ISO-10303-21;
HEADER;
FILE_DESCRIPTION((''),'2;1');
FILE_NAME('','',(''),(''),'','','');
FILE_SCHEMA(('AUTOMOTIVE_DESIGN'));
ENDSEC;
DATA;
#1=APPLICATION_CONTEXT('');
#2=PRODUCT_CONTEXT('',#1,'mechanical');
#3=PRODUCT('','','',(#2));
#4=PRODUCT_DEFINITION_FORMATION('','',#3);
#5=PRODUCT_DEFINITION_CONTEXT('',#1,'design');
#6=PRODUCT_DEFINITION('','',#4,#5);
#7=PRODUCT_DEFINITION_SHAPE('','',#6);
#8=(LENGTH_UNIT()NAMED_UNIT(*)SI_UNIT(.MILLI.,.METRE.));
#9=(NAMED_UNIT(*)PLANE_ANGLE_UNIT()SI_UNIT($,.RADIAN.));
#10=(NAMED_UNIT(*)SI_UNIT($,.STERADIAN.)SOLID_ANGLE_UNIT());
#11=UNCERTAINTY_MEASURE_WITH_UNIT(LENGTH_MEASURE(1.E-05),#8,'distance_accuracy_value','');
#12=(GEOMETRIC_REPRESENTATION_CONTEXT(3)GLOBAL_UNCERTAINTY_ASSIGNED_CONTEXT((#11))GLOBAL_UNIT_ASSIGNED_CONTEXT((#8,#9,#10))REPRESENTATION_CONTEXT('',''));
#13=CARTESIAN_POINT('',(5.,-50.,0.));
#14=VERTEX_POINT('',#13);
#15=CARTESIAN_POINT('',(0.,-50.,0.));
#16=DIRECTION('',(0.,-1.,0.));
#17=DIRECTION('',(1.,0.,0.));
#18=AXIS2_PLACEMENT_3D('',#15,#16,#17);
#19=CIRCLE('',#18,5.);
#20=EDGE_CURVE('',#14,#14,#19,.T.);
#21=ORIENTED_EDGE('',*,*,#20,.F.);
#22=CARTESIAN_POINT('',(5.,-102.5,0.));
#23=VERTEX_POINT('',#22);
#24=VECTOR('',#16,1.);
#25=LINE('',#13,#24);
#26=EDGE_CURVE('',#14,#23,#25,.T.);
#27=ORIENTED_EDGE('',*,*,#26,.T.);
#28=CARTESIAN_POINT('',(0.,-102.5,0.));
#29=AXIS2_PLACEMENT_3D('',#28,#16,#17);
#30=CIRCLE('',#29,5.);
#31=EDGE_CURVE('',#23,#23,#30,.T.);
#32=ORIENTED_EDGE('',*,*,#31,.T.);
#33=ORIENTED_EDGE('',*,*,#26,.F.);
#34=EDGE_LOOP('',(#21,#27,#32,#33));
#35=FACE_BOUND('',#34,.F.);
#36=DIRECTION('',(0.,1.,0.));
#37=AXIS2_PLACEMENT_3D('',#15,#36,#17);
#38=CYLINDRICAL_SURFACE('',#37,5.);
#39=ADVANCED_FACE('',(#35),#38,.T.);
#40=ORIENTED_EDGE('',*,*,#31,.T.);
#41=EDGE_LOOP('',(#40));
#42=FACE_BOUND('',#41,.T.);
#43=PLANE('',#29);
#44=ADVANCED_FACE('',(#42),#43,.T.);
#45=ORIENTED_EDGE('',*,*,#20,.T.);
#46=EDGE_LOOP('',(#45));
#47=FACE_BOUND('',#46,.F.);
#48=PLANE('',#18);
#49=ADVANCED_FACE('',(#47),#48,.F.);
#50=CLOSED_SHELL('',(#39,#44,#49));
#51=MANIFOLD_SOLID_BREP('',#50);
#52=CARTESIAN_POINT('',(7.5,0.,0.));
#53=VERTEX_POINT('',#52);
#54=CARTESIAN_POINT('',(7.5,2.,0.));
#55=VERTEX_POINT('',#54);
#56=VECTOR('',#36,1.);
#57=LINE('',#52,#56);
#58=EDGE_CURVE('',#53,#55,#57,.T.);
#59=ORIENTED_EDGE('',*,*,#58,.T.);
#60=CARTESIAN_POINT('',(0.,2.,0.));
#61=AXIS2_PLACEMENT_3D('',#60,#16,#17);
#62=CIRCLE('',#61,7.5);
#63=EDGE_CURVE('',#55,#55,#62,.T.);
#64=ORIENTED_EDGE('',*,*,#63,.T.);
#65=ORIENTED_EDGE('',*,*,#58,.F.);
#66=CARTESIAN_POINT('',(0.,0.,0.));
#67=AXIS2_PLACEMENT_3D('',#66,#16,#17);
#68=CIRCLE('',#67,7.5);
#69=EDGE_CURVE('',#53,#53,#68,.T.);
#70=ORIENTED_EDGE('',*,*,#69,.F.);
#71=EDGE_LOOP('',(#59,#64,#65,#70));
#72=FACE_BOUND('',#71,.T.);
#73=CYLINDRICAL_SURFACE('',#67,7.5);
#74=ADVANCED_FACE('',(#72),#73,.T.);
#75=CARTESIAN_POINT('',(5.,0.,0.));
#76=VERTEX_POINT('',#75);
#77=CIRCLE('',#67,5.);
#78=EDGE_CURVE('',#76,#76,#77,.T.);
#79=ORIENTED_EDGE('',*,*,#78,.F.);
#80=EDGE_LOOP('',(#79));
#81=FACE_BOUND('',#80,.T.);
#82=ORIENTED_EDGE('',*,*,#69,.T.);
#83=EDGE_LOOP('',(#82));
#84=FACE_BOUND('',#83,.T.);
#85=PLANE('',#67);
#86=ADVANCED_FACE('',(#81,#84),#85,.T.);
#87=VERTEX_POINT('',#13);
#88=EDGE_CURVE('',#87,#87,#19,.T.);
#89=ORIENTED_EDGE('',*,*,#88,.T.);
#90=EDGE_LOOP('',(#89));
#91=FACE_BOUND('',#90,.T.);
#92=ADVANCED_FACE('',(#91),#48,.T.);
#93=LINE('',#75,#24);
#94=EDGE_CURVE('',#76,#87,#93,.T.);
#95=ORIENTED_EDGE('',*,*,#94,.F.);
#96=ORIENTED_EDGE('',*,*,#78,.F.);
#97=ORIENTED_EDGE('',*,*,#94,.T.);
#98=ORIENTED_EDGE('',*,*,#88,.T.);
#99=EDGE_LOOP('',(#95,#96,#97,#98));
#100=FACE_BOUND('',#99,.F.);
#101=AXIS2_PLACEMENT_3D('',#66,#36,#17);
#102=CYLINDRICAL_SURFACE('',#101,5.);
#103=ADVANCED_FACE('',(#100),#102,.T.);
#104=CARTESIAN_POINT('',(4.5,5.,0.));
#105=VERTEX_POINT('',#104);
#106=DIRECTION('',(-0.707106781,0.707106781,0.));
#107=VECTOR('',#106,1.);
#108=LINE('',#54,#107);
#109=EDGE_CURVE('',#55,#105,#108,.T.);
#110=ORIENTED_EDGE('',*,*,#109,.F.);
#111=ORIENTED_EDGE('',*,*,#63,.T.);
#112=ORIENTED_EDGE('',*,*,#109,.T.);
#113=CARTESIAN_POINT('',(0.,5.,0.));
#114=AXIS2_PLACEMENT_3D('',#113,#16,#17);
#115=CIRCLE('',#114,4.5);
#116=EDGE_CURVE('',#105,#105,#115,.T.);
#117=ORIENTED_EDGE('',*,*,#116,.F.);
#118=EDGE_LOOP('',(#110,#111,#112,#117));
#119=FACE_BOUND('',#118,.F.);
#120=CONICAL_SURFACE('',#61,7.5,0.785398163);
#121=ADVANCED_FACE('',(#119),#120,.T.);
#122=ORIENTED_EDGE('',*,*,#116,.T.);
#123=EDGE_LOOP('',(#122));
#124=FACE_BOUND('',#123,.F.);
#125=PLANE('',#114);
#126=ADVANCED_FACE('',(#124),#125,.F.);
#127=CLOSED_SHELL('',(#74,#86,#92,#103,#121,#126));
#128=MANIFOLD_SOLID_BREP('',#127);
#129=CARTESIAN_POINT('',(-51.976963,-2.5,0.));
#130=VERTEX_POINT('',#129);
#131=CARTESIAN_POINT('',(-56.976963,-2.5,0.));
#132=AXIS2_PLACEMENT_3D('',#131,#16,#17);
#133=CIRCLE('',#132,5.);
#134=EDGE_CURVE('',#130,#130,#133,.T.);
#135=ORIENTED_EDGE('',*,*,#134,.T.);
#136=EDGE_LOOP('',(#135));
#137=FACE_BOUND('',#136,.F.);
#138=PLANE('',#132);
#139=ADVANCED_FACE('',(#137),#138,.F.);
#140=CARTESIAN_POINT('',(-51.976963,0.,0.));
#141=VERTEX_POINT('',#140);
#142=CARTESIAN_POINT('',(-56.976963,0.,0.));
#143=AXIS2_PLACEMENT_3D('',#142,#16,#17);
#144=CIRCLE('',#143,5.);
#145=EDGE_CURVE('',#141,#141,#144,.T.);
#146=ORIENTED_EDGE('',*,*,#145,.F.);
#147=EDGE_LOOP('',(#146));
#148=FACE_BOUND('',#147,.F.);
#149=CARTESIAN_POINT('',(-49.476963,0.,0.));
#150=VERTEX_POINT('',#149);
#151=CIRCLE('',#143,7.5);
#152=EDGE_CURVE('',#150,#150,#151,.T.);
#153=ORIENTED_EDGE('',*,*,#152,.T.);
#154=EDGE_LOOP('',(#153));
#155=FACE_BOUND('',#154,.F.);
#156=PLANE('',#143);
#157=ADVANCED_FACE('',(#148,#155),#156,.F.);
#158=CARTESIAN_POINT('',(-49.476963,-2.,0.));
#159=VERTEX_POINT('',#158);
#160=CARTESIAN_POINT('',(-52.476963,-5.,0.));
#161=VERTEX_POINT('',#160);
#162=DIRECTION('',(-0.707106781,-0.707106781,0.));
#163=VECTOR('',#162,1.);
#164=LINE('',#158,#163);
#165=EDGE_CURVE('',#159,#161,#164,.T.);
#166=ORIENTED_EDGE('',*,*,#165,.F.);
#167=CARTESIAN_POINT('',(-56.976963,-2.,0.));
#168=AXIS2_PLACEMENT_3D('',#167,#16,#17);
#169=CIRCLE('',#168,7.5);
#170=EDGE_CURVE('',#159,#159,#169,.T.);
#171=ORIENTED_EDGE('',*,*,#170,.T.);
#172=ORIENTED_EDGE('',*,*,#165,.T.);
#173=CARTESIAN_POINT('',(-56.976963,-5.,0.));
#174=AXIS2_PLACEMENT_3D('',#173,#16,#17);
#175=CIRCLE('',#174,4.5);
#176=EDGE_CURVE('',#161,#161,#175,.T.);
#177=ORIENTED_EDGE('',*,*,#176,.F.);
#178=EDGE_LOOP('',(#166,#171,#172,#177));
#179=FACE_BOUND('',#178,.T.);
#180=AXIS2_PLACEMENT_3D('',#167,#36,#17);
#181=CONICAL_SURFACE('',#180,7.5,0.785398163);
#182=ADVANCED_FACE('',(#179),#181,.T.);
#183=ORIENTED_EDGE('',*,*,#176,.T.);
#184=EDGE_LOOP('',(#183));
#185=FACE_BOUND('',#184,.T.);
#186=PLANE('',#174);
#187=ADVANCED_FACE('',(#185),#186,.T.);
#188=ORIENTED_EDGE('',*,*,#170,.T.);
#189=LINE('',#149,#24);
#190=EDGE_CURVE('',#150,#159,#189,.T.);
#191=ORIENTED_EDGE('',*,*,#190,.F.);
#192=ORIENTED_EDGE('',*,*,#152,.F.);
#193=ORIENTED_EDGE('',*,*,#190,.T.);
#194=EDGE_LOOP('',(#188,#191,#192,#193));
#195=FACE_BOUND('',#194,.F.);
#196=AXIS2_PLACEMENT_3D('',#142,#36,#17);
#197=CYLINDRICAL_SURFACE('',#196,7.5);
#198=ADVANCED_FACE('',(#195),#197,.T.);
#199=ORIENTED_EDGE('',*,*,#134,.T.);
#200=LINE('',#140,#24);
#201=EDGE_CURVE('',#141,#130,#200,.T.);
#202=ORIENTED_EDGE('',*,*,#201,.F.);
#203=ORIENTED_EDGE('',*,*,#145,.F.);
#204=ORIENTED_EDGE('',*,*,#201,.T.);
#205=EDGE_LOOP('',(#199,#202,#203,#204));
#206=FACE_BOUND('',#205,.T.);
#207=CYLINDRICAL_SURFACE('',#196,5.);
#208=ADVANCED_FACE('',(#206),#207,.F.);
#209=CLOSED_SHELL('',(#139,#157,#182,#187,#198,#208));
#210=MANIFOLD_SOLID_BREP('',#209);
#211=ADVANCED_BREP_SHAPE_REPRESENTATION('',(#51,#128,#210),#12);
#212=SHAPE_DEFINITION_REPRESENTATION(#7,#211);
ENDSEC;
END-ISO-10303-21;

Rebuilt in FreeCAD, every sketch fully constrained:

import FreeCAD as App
import Part
import Sketcher
from FreeCAD import Vector


def edges_at(feature, points):
    """Names of the edges that pass closest to the given points."""
    edges = feature.Shape.Edges
    near = lambda p: min(range(len(edges)), key=lambda i: edges[i].distToShape(Part.Vertex(*p))[0])
    return sorted({f"Edge{near(p) + 1}" for p in points})

doc = App.newDocument("Part")
body = doc.addObject("PartDesign::Body", "Body")

# Sketch on XZ plane
sketch1 = body.newObject("Sketcher::SketchObject", "Sketch")
sketch1.AttachmentSupport = (doc.getObject("XZ_Plane"), [""])
sketch1.MapMode = "FlatFace"
sketch1.addGeometry(Part.Circle(Vector(0, 0, 0), Vector(0, 0, 1), 7.5), False)
sketch1.addConstraint([
    Sketcher.Constraint("Coincident", 0, 3, -1, 1),
    Sketcher.Constraint("Diameter", 0, 15.0),
])
pad1 = body.newObject("PartDesign::Pad", "Pad")
pad1.Profile = sketch1
pad1.Length = 5
pad1.Reversed = True

# Sketch on XZ plane
sketch2 = body.newObject("Sketcher::SketchObject", "Sketch001")
sketch2.AttachmentSupport = (doc.getObject("XZ_Plane"), [""])
sketch2.MapMode = "FlatFace"
sketch2.addGeometry(Part.Circle(Vector(0, 0, 0), Vector(0, 0, 1), 5), False)
sketch2.addConstraint([
    Sketcher.Constraint("Coincident", 0, 3, -1, 1),
    Sketcher.Constraint("Diameter", 0, 10.0),
])
pad2 = body.newObject("PartDesign::Pad", "Pad001")
pad2.Profile = sketch2
pad2.Length = 50
doc.recompute()

chamfer = body.newObject("PartDesign::Chamfer", "Chamfer")
chamfer.Base = (pad2, edges_at(pad2, [(-7.5, 5, 0)]))
chamfer.Size = 3
body2 = doc.addObject("PartDesign::Body", "Body001")

# Sketch on XZ plane
sketch3 = body2.newObject("Sketcher::SketchObject", "Sketch002")
sketch3.AttachmentSupport = (doc.getObject("XZ_Plane001"), [""])
sketch3.MapMode = "FlatFace"
sketch3.AttachmentOffset = App.Placement(Vector(0, 0, 50), App.Rotation())
sketch3.addGeometry(Part.Circle(Vector(0, 0, 0), Vector(0, 0, 1), 5), False)
sketch3.addConstraint([
    Sketcher.Constraint("Coincident", 0, 3, -1, 1),
    Sketcher.Constraint("Diameter", 0, 10.0),
])
pad3 = body2.newObject("PartDesign::Pad", "Pad002")
pad3.Profile = sketch3
pad3.Length = 52.5
body3 = doc.addObject("PartDesign::Body", "Body002")

# Sketch on XZ plane
sketch4 = body3.newObject("Sketcher::SketchObject", "Sketch003")
sketch4.AttachmentSupport = (doc.getObject("XZ_Plane002"), [""])
sketch4.MapMode = "FlatFace"
sketch4.addGeometry(Part.Circle(Vector(-56.976963, 0, 0), Vector(0, 0, 1), 7.5), False)
sketch4.addConstraint([
    Sketcher.Constraint("PointOnObject", 0, 3, -1),
    Sketcher.Constraint("Diameter", 0, 15.0),
    Sketcher.Constraint("DistanceX", 0, 3, -1, 1, 56.976963),
])
pad4 = body3.newObject("PartDesign::Pad", "Pad003")
pad4.Profile = sketch4
pad4.Length = 5

# Sketch on XZ plane
sketch5 = body3.newObject("Sketcher::SketchObject", "Sketch004")
sketch5.AttachmentSupport = (doc.getObject("XZ_Plane002"), [""])
sketch5.MapMode = "FlatFace"
sketch5.addGeometry(Part.Circle(Vector(-56.976963, 0, 0), Vector(0, 0, 1), 5), False)
sketch5.addConstraint([
    Sketcher.Constraint("PointOnObject", 0, 3, -1),
    Sketcher.Constraint("Diameter", 0, 10.0),
    Sketcher.Constraint("DistanceX", 0, 3, -1, 1, 56.976963),
])
pocket1 = body3.newObject("PartDesign::Pocket", "Pocket")
pocket1.Profile = sketch5
pocket1.Length = 2.5
pocket1.Reversed = True
doc.recompute()

chamfer2 = body3.newObject("PartDesign::Chamfer", "Chamfer001")
chamfer2.Base = (pocket1, edges_at(pocket1, [(-64.477, -5, 0)]))
chamfer2.Size = 3

doc.recompute()
